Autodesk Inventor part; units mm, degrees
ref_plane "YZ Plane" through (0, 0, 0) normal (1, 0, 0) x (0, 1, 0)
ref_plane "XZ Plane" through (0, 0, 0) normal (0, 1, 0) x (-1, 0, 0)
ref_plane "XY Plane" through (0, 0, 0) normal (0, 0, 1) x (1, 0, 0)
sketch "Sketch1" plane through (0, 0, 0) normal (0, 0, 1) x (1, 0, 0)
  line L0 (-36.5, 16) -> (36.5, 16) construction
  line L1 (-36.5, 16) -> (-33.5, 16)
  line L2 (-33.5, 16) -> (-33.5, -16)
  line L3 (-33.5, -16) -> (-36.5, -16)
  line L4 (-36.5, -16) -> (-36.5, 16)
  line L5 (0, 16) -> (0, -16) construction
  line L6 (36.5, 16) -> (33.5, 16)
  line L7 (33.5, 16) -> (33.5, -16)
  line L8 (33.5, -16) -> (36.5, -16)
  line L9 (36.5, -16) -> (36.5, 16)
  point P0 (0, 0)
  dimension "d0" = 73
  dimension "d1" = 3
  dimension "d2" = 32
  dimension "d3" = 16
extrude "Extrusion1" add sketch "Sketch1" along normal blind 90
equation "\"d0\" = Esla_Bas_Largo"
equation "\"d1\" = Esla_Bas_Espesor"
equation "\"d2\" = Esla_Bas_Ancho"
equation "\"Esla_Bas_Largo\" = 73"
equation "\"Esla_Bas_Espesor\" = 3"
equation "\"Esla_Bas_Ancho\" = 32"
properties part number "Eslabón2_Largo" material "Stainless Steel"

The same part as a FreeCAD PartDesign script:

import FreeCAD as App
import Part
import Sketcher

doc = App.newDocument("Part")
params = doc.addObject("Spreadsheet::Sheet", "Params")
for row, (alias, value) in enumerate([
    ("sketch1_width", "3 mm"),
    ("sketch1_height", "32 mm"),
    ("pad1_length", "90 mm"),
], start=1):
    params.set(f"A{row}", alias)
    params.set(f"B{row}", "=" + value)
    params.setAlias(f"B{row}", alias)

body = doc.addObject("PartDesign::Body", "Body")
body.AllowCompound = True

sketch1 = body.newObject("Sketcher::SketchObject", "Sketch")
sketch1.AttachmentSupport = (doc.getObject("XY_Plane"), [""])
sketch1.MapMode = "FlatFace"
sketch1.addGeometry(Part.LineSegment(App.Vector(-33.5, 16, 0), App.Vector(-36.5, 16, 0)), False)
sketch1.addGeometry(Part.LineSegment(App.Vector(-36.5, 16, 0), App.Vector(-36.5, -16, 0)), False)
sketch1.addGeometry(Part.LineSegment(App.Vector(-36.5, -16, 0), App.Vector(-33.5, -16, 0)), False)
sketch1.addGeometry(Part.LineSegment(App.Vector(-33.5, -16, 0), App.Vector(-33.5, 16, 0)), False)
sketch1.addGeometry(Part.LineSegment(App.Vector(36.5, -16, 0), App.Vector(36.5, 16, 0)), False)
sketch1.addGeometry(Part.LineSegment(App.Vector(36.5, 16, 0), App.Vector(33.5, 16, 0)), False)
sketch1.addGeometry(Part.LineSegment(App.Vector(33.5, 16, 0), App.Vector(33.5, -16, 0)), False)
sketch1.addGeometry(Part.LineSegment(App.Vector(33.5, -16, 0), App.Vector(36.5, -16, 0)), False)
sketch1.addConstraint(Sketcher.Constraint("Coincident", 0, 2, 1, 1))
sketch1.addConstraint(Sketcher.Constraint("Coincident", 1, 2, 2, 1))
sketch1.addConstraint(Sketcher.Constraint("Coincident", 2, 2, 3, 1))
sketch1.addConstraint(Sketcher.Constraint("Coincident", 3, 2, 0, 1))
sketch1.addConstraint(Sketcher.Constraint("Coincident", 4, 2, 5, 1))
sketch1.addConstraint(Sketcher.Constraint("Coincident", 5, 2, 6, 1))
sketch1.addConstraint(Sketcher.Constraint("Coincident", 6, 2, 7, 1))
sketch1.addConstraint(Sketcher.Constraint("Coincident", 7, 2, 4, 1))
sketch1.addConstraint(Sketcher.Constraint("Horizontal", 0))
sketch1.addConstraint(Sketcher.Constraint("Vertical", 1))
sketch1.addConstraint(Sketcher.Constraint("Horizontal", 2))
sketch1.addConstraint(Sketcher.Constraint("Vertical", 3))
sketch1.addConstraint(Sketcher.Constraint("Vertical", 4))
sketch1.addConstraint(Sketcher.Constraint("Horizontal", 5))
sketch1.addConstraint(Sketcher.Constraint("Vertical", 6))
sketch1.addConstraint(Sketcher.Constraint("Horizontal", 7))
sketch1.addConstraint(Sketcher.Constraint("Symmetric", 1, 2, 4, 2, -1, 1))
sketch1.addConstraint(Sketcher.Constraint("Symmetric", 3, 2, 6, 2, -1, 1))
sketch1.addConstraint(Sketcher.Constraint("Horizontal", 3, 2, 4, 2))
sketch1.addConstraint(Sketcher.Constraint("DistanceX", 0, 2, 0, 1, 3.0))
sketch1.addConstraint(Sketcher.Constraint("DistanceY", 1, 2, 1, 1, 32.0))
sketch1.addConstraint(Sketcher.Constraint("DistanceX", 0, 2, 4, 2, 73.0))
sketch1.setExpression("Constraints[19]", "Params.sketch1_width")
sketch1.setExpression("Constraints[20]", "Params.sketch1_height")
pad1 = body.newObject("PartDesign::Pad", "Pad")
pad1.Profile = sketch1
pad1.setExpression("Length", "Params.pad1_length")

doc.recompute()
